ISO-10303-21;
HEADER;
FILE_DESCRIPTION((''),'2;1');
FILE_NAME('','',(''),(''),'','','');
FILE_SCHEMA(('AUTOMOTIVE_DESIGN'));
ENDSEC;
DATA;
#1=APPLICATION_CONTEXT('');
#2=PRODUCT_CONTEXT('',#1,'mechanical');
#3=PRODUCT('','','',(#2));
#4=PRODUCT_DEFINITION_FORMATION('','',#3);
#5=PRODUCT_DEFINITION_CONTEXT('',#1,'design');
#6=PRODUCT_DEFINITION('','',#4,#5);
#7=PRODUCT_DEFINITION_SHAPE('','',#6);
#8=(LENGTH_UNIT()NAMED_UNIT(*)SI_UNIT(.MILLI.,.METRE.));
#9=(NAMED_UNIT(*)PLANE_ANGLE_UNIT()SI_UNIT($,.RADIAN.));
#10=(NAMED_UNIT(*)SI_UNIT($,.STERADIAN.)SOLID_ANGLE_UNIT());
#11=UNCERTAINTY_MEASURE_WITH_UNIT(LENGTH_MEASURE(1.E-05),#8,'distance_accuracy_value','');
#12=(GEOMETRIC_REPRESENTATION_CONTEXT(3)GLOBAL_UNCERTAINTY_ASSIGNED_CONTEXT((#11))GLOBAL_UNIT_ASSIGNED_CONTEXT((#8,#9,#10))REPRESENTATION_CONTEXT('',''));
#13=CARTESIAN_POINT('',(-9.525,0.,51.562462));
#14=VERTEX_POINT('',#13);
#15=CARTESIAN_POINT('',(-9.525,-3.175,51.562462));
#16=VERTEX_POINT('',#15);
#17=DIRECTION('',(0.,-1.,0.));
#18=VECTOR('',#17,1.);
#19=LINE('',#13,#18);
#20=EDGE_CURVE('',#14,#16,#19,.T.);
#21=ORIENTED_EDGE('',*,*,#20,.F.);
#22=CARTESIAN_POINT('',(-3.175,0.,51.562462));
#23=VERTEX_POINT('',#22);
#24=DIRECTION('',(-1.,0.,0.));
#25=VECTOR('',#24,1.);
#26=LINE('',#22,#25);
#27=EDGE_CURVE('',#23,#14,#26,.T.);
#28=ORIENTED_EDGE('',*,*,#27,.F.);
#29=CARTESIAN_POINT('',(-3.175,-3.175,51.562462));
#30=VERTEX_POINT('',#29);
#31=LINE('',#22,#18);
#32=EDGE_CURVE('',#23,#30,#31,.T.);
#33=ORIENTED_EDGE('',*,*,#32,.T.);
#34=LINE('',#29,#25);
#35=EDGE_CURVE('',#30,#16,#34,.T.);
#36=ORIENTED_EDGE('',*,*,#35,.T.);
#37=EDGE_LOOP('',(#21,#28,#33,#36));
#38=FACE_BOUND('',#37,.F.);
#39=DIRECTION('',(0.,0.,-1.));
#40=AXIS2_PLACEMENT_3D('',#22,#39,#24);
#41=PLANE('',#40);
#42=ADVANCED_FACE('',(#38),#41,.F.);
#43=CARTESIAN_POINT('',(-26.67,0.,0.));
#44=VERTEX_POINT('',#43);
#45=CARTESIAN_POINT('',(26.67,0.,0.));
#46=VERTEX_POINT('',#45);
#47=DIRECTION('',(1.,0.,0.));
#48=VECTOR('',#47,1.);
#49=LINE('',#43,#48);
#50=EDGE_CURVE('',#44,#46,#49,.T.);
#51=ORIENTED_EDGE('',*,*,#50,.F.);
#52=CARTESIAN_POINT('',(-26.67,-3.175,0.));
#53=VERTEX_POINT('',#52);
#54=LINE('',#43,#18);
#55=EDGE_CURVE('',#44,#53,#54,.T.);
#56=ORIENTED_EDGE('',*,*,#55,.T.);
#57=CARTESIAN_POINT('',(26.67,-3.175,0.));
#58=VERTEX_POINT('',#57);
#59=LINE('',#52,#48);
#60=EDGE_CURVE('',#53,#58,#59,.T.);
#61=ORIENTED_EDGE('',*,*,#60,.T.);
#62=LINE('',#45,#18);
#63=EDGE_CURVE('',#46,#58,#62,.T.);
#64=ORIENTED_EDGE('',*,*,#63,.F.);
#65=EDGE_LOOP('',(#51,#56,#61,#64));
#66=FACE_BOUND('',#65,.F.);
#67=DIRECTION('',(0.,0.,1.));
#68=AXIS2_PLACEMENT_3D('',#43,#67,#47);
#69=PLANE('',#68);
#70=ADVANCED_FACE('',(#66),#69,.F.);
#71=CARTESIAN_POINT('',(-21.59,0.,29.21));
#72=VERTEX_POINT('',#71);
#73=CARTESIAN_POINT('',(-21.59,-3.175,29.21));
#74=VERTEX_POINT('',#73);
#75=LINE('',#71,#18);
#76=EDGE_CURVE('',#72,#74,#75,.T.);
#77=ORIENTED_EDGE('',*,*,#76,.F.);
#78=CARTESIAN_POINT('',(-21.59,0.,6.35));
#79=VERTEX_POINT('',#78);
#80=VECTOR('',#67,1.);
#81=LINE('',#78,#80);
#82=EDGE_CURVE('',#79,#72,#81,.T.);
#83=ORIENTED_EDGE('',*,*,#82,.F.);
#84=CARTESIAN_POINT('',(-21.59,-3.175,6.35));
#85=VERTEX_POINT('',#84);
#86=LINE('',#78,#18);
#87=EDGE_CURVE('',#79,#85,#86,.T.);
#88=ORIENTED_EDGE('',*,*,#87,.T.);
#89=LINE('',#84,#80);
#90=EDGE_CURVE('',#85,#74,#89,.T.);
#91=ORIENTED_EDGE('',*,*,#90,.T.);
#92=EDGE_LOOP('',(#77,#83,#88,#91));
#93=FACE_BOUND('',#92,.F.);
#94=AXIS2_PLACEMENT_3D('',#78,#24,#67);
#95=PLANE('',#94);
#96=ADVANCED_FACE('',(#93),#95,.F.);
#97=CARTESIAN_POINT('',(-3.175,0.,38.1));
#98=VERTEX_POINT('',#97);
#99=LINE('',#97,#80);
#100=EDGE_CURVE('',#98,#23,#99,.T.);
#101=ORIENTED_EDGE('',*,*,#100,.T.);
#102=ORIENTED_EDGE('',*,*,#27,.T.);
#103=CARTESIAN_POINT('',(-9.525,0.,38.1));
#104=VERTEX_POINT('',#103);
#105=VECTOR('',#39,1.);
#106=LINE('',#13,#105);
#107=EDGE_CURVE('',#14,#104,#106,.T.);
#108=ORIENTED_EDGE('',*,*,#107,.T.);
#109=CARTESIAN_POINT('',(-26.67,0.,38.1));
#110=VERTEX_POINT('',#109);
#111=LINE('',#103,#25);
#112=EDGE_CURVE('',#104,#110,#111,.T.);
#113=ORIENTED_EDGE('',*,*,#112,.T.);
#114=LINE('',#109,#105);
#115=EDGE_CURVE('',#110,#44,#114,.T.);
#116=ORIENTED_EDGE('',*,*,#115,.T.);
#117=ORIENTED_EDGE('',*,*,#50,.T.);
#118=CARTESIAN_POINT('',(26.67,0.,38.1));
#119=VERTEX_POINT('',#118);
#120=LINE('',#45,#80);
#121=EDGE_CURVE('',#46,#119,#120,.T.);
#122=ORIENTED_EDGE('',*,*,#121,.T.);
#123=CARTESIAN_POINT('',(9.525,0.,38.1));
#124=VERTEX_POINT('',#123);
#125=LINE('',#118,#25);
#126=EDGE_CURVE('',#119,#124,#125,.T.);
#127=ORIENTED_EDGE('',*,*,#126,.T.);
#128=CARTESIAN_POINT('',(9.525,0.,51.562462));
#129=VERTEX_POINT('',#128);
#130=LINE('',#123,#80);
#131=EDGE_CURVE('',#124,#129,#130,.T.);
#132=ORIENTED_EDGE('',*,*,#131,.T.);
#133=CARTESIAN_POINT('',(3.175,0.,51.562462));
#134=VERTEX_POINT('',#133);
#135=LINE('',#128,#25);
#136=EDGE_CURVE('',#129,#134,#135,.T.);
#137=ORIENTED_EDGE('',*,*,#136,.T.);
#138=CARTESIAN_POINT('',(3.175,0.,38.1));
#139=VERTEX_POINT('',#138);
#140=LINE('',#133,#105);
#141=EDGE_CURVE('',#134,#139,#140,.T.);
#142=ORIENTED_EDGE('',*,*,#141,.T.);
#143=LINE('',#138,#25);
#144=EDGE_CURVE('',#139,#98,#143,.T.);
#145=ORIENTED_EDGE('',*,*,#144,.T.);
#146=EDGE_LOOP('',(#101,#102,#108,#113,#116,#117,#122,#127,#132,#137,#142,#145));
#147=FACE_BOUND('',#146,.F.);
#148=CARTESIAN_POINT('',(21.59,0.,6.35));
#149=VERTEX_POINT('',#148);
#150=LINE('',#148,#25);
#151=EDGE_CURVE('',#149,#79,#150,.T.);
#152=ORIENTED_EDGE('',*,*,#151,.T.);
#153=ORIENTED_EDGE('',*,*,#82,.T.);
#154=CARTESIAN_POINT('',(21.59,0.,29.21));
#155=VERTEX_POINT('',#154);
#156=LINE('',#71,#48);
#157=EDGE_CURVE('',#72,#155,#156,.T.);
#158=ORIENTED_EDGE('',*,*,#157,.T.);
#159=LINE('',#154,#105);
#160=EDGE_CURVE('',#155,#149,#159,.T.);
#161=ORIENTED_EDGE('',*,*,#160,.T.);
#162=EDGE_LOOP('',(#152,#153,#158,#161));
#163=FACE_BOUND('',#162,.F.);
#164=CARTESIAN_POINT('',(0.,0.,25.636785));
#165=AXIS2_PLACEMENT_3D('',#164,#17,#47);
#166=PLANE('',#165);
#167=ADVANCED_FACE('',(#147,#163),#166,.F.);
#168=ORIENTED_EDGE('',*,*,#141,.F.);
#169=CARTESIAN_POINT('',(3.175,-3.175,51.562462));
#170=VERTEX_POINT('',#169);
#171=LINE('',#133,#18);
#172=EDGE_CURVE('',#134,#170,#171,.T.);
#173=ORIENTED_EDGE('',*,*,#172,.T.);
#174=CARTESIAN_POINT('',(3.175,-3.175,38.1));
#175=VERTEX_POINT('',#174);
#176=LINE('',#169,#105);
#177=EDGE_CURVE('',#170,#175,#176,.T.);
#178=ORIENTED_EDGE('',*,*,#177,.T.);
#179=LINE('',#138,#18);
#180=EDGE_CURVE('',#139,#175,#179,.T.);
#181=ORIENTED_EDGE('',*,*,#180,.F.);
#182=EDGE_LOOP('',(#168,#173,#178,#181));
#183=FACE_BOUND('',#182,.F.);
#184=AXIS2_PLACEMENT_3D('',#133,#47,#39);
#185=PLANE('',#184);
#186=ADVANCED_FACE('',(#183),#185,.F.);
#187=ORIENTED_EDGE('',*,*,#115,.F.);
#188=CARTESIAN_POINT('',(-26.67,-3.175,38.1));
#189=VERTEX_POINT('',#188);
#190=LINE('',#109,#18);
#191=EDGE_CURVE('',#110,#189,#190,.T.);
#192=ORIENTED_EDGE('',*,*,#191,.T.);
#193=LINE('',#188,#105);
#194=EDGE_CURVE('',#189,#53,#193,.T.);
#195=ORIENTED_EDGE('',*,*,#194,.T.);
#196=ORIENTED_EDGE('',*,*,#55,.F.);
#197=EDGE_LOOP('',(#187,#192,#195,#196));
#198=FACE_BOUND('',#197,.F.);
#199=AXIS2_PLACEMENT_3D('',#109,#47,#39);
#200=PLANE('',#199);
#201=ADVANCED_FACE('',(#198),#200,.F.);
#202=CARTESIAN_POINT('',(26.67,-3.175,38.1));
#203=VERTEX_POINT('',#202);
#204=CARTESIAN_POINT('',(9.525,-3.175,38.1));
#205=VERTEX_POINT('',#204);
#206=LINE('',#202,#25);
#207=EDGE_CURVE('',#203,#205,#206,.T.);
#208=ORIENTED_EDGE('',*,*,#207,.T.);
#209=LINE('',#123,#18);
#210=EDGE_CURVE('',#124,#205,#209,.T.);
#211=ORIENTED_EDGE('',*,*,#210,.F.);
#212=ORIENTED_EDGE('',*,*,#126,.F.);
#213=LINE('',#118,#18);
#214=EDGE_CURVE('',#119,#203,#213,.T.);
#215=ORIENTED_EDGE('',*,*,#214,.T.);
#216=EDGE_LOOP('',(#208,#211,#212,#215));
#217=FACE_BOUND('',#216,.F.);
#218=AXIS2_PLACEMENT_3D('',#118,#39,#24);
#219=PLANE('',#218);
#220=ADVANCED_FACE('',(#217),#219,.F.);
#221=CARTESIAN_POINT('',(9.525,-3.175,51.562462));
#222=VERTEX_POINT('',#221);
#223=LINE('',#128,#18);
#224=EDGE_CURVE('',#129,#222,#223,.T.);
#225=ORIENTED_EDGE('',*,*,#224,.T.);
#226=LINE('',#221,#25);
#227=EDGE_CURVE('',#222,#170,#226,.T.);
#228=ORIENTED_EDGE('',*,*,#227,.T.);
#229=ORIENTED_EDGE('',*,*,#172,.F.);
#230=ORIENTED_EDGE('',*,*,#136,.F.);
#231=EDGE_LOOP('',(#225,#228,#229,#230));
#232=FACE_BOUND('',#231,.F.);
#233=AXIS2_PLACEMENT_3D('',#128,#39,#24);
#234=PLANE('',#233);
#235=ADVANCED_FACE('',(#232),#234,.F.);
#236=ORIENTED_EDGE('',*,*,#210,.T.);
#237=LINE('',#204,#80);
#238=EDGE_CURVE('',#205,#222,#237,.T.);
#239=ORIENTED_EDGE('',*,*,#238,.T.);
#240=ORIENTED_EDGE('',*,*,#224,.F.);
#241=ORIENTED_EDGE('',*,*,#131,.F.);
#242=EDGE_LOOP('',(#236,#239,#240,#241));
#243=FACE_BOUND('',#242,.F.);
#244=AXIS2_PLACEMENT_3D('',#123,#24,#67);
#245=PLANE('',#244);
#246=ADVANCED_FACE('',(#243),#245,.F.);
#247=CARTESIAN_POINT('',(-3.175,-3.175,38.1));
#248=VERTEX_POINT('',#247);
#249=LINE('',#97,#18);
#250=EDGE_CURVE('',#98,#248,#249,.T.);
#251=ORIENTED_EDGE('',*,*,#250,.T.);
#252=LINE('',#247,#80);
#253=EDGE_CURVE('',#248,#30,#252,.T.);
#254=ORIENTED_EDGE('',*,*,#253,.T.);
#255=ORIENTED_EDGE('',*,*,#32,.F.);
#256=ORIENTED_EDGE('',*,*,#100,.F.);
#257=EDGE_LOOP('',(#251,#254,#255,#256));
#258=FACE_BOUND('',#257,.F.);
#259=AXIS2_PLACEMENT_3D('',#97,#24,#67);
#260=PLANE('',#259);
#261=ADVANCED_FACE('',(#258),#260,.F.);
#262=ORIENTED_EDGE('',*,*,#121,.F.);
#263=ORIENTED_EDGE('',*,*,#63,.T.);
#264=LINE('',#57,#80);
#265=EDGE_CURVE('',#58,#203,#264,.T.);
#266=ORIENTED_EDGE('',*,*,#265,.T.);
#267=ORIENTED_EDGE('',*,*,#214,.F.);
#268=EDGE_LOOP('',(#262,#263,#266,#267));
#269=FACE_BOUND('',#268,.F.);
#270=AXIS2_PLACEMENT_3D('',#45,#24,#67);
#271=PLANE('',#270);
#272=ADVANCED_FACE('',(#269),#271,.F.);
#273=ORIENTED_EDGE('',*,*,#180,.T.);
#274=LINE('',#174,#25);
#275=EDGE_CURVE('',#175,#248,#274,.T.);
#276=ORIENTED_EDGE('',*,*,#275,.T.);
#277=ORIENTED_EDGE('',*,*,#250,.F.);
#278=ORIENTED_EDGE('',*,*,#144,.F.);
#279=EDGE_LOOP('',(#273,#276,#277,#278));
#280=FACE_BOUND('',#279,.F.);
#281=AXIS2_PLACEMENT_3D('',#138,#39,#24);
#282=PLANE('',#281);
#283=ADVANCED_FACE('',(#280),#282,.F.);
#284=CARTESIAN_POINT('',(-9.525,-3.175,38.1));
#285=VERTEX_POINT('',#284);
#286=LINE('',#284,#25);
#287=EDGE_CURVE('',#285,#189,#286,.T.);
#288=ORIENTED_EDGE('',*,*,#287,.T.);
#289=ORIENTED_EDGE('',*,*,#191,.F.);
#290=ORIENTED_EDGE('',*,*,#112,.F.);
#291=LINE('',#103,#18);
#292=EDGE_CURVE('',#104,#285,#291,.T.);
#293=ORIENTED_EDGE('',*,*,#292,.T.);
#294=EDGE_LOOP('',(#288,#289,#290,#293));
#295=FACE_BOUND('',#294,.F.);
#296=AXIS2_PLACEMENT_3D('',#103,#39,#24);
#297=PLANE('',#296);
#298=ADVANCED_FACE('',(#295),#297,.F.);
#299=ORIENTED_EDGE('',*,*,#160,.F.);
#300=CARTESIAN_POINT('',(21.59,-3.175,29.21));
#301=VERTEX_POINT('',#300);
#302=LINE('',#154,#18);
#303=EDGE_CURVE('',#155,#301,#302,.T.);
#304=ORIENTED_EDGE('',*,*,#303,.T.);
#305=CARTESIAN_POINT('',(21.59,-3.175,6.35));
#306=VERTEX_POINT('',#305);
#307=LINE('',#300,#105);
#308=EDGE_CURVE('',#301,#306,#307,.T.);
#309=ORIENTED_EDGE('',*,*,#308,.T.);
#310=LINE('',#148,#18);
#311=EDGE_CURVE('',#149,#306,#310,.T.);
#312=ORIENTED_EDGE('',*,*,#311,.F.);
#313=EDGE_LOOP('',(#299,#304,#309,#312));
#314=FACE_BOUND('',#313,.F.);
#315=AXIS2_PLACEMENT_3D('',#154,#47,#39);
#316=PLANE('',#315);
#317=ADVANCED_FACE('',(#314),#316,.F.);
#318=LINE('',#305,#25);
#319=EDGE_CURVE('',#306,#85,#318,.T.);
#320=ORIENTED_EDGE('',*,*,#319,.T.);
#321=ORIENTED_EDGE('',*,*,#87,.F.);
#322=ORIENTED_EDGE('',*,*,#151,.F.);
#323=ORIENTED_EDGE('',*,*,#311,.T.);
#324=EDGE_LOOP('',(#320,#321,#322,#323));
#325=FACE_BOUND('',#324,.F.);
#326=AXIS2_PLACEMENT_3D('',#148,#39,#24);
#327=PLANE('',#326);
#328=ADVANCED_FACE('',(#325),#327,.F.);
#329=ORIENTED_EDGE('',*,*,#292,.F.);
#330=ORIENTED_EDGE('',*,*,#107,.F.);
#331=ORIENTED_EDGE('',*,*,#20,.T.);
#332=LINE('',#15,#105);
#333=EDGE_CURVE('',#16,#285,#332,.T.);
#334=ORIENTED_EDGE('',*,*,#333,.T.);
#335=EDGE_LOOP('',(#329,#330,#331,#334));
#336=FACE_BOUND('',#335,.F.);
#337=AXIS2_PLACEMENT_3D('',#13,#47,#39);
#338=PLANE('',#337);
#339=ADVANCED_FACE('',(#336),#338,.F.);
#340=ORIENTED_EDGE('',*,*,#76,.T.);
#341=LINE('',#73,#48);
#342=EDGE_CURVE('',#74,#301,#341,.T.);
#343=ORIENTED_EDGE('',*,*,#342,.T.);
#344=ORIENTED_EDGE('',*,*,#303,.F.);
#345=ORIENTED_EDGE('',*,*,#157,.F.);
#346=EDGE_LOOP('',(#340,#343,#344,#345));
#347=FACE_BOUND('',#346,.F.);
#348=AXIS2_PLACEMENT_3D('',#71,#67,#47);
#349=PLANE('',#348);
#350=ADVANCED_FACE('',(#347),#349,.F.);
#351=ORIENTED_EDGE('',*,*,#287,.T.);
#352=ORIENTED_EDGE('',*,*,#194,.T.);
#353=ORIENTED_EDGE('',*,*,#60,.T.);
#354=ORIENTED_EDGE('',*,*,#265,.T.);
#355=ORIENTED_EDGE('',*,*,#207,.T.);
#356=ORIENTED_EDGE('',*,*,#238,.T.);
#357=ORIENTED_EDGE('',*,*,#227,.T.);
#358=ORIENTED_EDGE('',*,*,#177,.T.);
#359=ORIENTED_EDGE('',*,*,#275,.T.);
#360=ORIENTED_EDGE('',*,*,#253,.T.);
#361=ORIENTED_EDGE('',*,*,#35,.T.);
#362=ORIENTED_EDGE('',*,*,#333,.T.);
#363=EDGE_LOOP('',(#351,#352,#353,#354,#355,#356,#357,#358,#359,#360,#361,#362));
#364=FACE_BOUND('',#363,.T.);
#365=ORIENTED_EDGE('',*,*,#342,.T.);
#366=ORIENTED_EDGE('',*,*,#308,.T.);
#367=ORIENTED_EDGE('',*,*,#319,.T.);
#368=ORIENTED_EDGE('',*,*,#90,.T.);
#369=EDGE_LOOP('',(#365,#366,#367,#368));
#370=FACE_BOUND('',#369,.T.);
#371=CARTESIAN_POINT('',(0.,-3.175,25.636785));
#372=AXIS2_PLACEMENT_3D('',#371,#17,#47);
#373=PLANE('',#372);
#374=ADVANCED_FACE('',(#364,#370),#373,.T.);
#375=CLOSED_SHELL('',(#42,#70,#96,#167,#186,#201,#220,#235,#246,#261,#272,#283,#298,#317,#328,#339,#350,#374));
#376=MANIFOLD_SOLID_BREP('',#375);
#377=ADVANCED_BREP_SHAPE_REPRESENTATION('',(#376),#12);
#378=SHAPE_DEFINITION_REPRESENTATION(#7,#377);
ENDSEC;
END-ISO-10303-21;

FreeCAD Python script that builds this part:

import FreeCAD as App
import Part
import Sketcher
from FreeCAD import Vector
Q = App.Units.Quantity


def add_polygon(sketch, points):
    """Adds a closed chain of lines whose ends are joined by coincident constraints."""
    first, n = sketch.GeometryCount, len(points)
    for a, b in zip(points, points[1:] + points[:1]):
        sketch.addGeometry(Part.LineSegment(App.Vector(*a, 0), App.Vector(*b, 0)), False)
    for i in range(n):
        sketch.addConstraint(Sketcher.Constraint("Coincident", first + i, 2, first + (i + 1) % n, 1))

doc = App.newDocument("Part")
params = doc.addObject("Spreadsheet::Sheet", "Params")
for row, (alias, value) in enumerate([
    ("sketch1_width", "2.1 in"),
    ("sketch1_width2", "1.7 in"),
    ("sketch1_height", "1.5 in"),
    ("sketch1_height2", "0.9 in"),
    ("sketch1_width3", "0.25 in"),
    ("pad1_length", "0.125 in"),
], start=1):
    params.set(f"A{row}", alias)
    params.set(f"B{row}", "=" + value)
    params.setAlias(f"B{row}", alias)

body = doc.addObject("PartDesign::Body", "Body")

# Sketch on XZ plane
sketch1 = body.newObject("Sketcher::SketchObject", "Sketch")
sketch1.AttachmentSupport = (doc.getObject("XZ_Plane"), [""])
sketch1.MapMode = "FlatFace"
add_polygon(sketch1, [(-27, 0), (27, 0), (27, 38), (10, 38), (10, 52), (3, 52), (3, 38), (-3, 38), (-3, 52), (-10, 52), (-10, 38), (-27, 38)])  # lines 0-11
add_polygon(sketch1, [(22, 29), (22, 6), (-22, 6), (-22, 29)])  # lines 12-15
sketch1.addConstraint([
    Sketcher.Constraint("Horizontal", 0),
    Sketcher.Constraint("Vertical", 1),
    Sketcher.Constraint("Horizontal", 2),
    Sketcher.Constraint("Vertical", 3),
    Sketcher.Constraint("Horizontal", 4),
    Sketcher.Constraint("Vertical", 5),
    Sketcher.Constraint("Horizontal", 6),
    Sketcher.Constraint("Vertical", 7),
    Sketcher.Constraint("Horizontal", 8),
    Sketcher.Constraint("Vertical", 9),
    Sketcher.Constraint("Horizontal", 10),
    Sketcher.Constraint("Vertical", 11),
    Sketcher.Constraint("Vertical", 12),
    Sketcher.Constraint("Horizontal", 13),
    Sketcher.Constraint("Vertical", 14),
    Sketcher.Constraint("Horizontal", 15),
    Sketcher.Constraint("Symmetric", 0, 2, 11, 2, -1, 1),
    Sketcher.Constraint("Symmetric", 4, 2, 7, 2, -2),
    Sketcher.Constraint("Symmetric", 2, 2, 9, 2, -2),
    Sketcher.Constraint("Horizontal", 2, 2, 5, 2),
    Sketcher.Constraint("Equal", 4, 6),
    Sketcher.Constraint("DistanceX", 0, 1, 0, 2, Q("2.1 in")),
    Sketcher.Constraint("DistanceX", 13, 2, 13, 1, Q("1.7 in")),
    Sketcher.Constraint("DistanceY", 1, 1, 1, 2, Q("1.5 in")),
    Sketcher.Constraint("DistanceY", 12, 2, 12, 1, Q("0.9 in")),
    Sketcher.Constraint("DistanceX", 4, 2, 4, 1, Q("0.25 in")),
    Sketcher.Constraint("DistanceX", 12, 2, 0, 2, Q("0.2 in")),
    Sketcher.Constraint("DistanceY", -1, 1, 12, 2, Q("0.25 in")),
    Sketcher.Constraint("DistanceY", 3, 1, 3, 2, Q("13.462462 mm")),
])
sketch1.setExpression("Constraints[37]", "Params.sketch1_width")
sketch1.setExpression("Constraints[38]", "Params.sketch1_width2")
sketch1.setExpression("Constraints[39]", "Params.sketch1_height")
sketch1.setExpression("Constraints[40]", "Params.sketch1_height2")
sketch1.setExpression("Constraints[41]", "Params.sketch1_width3")
pad1 = body.newObject("PartDesign::Pad", "Pad")
pad1.Profile = sketch1
pad1.setExpression("Length", "Params.pad1_length")

doc.recompute()
